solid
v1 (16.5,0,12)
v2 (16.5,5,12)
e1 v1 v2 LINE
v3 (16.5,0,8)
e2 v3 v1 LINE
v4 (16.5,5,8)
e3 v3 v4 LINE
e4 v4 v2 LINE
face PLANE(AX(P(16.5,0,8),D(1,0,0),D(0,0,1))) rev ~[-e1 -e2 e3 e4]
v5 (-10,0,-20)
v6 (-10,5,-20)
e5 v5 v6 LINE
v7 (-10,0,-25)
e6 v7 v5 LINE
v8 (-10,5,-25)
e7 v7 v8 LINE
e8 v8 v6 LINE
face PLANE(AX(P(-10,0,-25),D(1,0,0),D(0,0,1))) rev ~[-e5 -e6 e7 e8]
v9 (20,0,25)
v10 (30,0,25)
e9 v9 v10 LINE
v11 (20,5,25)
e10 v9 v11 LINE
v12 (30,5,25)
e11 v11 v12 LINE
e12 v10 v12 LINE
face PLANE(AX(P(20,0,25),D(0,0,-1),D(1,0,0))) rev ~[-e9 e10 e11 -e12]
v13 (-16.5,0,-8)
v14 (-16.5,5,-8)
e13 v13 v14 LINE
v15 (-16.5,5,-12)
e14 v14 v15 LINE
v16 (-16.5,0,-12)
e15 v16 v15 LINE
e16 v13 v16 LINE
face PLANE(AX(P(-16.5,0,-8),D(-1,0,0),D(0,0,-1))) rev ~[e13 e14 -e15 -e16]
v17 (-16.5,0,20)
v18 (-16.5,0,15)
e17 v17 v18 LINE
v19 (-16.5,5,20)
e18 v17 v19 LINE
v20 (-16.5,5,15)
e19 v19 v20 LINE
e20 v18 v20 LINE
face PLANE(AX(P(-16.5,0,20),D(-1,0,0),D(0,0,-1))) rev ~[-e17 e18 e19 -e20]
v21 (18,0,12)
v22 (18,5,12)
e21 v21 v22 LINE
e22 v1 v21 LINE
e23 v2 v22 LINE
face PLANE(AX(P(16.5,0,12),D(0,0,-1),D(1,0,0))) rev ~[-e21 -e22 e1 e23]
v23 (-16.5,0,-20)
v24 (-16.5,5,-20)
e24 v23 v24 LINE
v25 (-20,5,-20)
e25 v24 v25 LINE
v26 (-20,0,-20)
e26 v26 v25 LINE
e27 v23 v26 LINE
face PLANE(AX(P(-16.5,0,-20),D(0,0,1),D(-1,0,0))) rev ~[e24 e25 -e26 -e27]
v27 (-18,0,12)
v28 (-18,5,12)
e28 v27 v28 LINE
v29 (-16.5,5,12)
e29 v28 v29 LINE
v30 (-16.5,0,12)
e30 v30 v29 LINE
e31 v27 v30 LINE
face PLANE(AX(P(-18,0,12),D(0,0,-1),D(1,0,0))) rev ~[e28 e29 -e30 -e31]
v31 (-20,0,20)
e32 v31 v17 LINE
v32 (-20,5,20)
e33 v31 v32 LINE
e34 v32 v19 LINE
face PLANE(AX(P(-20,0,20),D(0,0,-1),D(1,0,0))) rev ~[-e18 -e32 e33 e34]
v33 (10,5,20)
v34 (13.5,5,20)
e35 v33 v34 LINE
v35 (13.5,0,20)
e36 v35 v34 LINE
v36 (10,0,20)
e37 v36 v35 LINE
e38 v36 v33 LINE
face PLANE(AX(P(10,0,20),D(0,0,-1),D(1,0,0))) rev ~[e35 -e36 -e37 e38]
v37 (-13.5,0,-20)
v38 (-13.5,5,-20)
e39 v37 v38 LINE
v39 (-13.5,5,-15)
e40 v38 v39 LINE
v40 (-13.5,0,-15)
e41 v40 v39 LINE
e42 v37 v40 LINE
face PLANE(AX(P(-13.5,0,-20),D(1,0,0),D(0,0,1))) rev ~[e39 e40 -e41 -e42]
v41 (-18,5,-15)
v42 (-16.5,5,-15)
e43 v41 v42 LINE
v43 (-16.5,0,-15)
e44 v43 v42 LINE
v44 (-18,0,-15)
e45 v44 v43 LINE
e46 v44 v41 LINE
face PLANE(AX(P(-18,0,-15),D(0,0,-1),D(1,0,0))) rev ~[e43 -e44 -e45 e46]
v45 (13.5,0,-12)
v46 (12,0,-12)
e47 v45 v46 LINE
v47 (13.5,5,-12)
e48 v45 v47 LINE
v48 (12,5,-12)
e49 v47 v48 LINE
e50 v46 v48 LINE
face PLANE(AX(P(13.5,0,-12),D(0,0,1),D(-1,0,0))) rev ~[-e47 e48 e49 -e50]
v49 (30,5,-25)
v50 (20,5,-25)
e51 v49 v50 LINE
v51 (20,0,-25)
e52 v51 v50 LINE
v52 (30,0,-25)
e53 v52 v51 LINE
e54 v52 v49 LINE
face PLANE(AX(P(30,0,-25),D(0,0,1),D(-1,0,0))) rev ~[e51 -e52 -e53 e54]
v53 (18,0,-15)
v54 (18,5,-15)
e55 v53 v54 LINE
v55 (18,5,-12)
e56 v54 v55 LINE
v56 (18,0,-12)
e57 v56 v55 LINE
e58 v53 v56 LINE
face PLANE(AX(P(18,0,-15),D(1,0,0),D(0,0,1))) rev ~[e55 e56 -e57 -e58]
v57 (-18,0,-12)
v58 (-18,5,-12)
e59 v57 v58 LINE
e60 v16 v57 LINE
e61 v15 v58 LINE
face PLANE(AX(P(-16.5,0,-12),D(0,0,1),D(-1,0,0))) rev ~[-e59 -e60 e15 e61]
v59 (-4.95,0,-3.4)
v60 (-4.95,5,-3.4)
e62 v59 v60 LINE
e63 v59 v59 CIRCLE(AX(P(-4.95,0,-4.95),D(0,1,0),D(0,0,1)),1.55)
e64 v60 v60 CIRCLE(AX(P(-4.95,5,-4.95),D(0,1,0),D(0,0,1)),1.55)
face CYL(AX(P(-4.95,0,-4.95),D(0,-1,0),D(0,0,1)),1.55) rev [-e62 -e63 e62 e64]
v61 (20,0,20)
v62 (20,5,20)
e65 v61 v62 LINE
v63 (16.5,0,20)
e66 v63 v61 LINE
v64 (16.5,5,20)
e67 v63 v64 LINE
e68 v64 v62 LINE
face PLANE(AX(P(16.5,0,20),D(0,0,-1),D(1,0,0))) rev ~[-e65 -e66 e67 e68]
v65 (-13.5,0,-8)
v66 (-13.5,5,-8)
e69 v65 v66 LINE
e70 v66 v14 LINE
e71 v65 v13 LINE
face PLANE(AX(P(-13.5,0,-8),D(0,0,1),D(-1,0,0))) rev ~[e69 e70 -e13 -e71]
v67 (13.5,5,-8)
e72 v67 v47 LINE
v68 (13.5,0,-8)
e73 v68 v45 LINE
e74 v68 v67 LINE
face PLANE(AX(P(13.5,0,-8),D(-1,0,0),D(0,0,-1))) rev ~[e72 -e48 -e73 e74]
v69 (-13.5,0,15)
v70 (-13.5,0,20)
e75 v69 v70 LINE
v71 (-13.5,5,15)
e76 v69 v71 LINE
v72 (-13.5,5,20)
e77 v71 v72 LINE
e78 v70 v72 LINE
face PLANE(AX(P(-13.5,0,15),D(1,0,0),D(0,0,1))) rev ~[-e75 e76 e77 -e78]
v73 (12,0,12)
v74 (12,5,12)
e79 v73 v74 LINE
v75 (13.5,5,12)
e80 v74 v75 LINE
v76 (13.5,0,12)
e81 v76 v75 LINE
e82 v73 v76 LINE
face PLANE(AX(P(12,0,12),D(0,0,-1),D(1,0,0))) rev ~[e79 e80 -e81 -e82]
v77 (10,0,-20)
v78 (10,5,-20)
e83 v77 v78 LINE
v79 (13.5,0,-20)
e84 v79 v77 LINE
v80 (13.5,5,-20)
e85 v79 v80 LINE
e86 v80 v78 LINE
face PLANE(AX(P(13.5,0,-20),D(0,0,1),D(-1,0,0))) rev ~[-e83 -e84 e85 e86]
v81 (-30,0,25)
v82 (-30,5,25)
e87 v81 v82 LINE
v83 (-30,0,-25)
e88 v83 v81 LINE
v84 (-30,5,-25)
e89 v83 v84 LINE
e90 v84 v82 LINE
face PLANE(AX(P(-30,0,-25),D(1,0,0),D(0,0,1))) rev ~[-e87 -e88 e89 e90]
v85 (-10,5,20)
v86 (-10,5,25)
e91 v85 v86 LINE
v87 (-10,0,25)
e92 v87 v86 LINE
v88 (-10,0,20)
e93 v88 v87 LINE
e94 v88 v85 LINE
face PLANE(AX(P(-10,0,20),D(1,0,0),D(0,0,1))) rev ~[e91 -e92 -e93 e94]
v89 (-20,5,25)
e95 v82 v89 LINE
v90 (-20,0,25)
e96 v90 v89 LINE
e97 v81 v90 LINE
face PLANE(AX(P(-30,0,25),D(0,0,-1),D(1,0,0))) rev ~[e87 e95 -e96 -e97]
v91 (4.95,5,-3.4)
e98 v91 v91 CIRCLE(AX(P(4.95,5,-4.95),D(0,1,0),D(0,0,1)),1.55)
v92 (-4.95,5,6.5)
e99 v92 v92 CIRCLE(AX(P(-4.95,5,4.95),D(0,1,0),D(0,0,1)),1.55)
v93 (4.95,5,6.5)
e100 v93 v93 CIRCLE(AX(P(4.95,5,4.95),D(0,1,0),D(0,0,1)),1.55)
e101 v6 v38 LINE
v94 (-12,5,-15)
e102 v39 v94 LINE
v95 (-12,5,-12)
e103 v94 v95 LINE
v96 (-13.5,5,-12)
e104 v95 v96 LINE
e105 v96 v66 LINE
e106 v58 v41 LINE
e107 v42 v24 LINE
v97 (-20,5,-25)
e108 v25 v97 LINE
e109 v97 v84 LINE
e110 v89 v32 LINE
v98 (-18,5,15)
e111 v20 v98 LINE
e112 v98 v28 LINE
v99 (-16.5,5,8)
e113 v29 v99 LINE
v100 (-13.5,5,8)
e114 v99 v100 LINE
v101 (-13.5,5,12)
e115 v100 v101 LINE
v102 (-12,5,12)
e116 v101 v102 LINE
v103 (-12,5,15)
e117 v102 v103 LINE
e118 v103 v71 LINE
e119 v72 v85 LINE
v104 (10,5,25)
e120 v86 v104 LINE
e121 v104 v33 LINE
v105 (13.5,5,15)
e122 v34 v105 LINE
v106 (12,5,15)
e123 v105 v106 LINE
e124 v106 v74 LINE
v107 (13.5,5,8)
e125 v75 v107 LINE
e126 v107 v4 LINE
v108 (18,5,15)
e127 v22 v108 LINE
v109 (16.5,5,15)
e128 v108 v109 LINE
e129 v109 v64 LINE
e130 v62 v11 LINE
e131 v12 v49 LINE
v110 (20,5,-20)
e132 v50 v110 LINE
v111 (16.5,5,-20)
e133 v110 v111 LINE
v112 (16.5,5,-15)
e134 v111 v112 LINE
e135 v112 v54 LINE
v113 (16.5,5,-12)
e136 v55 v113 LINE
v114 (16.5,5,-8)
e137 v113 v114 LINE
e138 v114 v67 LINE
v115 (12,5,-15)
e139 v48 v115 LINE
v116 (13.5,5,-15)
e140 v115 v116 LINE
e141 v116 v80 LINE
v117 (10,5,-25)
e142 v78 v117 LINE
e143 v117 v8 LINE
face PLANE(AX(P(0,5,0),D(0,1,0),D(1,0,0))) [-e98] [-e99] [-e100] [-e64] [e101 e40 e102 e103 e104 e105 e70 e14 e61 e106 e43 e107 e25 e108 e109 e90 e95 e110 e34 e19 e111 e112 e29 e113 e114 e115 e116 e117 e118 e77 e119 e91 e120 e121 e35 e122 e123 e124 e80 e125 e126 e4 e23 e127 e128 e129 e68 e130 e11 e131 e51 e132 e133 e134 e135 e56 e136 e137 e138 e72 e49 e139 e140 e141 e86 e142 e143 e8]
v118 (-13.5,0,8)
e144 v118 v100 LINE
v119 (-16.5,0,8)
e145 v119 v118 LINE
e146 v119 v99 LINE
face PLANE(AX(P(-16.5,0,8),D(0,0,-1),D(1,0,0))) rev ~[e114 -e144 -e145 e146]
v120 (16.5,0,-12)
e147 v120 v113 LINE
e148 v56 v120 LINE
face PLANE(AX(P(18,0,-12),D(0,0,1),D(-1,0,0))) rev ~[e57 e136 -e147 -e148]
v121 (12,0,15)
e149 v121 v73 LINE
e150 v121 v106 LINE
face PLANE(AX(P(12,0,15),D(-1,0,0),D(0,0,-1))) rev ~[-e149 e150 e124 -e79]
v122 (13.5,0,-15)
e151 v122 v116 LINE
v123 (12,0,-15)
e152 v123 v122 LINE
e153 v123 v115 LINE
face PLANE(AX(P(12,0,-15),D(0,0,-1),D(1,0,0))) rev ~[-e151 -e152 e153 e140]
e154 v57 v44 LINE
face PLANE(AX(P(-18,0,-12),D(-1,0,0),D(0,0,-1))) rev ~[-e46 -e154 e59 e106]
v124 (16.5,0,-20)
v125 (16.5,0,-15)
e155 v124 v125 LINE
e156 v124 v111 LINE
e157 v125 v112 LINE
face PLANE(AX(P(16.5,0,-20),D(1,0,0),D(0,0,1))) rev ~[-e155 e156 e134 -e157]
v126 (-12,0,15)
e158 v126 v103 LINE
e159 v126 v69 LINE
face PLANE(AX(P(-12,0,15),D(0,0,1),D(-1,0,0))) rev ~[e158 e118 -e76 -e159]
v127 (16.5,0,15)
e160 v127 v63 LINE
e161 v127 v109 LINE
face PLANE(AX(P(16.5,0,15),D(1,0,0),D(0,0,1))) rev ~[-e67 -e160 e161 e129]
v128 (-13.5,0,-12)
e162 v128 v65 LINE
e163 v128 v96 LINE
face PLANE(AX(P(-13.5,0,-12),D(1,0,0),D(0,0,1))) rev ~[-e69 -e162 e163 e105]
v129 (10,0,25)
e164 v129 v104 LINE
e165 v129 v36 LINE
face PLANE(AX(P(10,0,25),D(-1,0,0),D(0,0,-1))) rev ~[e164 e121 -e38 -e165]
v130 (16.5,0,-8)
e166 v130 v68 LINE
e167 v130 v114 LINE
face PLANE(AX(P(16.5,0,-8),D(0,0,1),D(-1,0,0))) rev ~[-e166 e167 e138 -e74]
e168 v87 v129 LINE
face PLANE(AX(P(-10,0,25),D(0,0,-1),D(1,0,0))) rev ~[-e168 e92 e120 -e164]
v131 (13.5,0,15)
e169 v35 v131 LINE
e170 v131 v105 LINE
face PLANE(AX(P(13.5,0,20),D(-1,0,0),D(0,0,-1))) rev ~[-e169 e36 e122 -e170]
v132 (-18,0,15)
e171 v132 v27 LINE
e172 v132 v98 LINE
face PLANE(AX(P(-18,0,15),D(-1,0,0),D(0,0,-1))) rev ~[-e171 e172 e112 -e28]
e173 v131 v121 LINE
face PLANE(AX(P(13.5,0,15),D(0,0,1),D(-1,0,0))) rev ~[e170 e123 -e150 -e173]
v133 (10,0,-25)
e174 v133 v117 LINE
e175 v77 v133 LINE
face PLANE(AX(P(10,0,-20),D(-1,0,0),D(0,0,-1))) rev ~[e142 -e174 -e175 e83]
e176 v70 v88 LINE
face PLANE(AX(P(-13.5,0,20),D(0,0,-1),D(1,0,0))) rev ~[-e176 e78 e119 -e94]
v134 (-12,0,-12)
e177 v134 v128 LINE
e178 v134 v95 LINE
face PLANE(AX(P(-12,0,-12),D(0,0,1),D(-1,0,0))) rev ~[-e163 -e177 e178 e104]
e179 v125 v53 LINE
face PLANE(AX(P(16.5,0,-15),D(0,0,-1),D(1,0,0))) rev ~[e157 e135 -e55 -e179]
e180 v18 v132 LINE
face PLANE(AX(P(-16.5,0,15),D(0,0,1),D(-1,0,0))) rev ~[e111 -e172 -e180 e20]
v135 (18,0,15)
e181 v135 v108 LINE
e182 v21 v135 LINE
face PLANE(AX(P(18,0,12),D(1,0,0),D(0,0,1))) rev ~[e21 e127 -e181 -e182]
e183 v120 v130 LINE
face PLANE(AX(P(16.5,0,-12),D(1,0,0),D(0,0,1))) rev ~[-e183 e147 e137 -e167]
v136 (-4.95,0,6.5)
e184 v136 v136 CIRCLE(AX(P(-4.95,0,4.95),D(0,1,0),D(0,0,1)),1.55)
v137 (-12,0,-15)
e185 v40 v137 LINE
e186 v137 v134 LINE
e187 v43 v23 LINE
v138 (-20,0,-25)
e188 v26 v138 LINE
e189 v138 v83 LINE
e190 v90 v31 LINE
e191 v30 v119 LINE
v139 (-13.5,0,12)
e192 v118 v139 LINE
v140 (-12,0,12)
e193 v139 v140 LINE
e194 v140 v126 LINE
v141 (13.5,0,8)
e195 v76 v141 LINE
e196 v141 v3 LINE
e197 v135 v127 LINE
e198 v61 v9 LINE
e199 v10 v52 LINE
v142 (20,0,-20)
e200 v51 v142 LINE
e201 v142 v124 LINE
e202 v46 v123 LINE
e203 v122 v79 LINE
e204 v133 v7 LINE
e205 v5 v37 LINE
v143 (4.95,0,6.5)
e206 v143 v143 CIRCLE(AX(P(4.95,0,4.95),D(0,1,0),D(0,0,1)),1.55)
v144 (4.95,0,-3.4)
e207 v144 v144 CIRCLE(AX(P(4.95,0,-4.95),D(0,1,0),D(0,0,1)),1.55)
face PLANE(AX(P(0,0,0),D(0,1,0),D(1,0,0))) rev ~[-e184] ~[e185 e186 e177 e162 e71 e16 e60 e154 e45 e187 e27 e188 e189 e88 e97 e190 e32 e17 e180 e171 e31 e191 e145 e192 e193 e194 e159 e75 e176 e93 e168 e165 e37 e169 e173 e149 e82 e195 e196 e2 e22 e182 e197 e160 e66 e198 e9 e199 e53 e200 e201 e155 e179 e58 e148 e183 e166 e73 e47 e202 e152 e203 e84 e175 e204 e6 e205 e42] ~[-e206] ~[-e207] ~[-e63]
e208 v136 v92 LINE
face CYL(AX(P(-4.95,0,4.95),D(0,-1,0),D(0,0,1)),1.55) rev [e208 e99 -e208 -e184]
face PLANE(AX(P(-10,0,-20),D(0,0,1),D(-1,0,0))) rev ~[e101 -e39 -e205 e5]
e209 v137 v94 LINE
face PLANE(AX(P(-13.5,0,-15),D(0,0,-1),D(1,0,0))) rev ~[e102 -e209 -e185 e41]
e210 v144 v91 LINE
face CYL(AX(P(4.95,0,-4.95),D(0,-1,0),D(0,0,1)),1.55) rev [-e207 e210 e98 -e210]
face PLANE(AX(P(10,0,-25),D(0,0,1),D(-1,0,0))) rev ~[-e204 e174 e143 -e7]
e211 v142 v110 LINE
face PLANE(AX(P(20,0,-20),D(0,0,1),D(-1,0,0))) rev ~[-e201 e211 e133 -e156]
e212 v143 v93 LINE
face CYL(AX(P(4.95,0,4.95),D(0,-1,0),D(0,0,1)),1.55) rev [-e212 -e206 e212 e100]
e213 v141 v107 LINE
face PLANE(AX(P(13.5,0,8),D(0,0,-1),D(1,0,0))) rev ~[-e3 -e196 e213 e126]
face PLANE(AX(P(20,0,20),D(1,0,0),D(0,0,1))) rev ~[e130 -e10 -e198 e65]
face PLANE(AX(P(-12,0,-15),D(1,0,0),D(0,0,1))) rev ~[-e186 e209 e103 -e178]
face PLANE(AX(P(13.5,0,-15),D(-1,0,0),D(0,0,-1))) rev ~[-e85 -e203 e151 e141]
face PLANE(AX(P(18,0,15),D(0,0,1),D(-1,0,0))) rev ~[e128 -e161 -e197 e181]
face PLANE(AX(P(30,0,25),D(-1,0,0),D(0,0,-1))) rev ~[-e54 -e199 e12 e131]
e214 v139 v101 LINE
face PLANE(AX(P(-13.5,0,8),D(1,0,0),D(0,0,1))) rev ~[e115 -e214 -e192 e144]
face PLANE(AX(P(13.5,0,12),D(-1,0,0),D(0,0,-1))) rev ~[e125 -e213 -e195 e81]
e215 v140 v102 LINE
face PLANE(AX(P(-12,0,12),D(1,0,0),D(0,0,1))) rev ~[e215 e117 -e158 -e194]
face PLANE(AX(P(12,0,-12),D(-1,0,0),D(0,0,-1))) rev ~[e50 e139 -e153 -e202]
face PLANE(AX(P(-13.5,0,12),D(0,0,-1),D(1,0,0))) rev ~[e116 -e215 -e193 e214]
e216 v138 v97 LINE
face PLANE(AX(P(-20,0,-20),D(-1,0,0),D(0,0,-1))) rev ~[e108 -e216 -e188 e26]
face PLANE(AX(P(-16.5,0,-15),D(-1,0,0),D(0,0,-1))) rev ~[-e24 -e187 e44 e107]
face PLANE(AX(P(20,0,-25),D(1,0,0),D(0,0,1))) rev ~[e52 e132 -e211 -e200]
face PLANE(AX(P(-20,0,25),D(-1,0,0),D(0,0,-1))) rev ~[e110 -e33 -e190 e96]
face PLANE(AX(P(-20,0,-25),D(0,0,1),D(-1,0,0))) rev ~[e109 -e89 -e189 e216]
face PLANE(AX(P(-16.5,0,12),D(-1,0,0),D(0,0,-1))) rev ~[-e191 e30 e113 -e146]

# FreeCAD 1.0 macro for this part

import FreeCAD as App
import Part
import Sketcher

V = App.Vector


def add_polygon(sketch, points):
    """Adds a closed chain of lines whose ends are joined by coincident constraints."""
    first, n = sketch.GeometryCount, len(points)
    for a, b in zip(points, points[1:] + points[:1]):
        sketch.addGeometry(Part.LineSegment(App.Vector(*a, 0), App.Vector(*b, 0)), False)
    for i in range(n):
        sketch.addConstraint(Sketcher.Constraint("Coincident", first + i, 2, first + (i + 1) % n, 1))

doc = App.newDocument("Part")
body = doc.addObject("PartDesign::Body", "Body")

# Sketch on XZ plane
sketch1 = body.newObject("Sketcher::SketchObject", "Sketch")
sketch1.AttachmentSupport = (doc.getObject("XZ_Plane"), [""])
sketch1.MapMode = "FlatFace"
add_polygon(sketch1, [(-30, -25), (-30, 25), (-20, 25), (-20, 20), (-16.5, 20), (-16.5, 15), (-18, 15), (-18, 12), (-16.5, 12), (-16.5, 8), (-13.5, 8), (-13.5, 12), (-12, 12), (-12, 15), (-13.5, 15), (-13.5, 20), (-10, 20), (-10, 25), (10, 25), (10, 20), (13.5, 20), (13.5, 15), (12, 15), (12, 12), (13.5, 12), (13.5, 8), (16.5, 8), (16.5, 12), (18, 12), (18, 15), (16.5, 15), (16.5, 20), (20, 20), (20, 25), (30, 25), (30, -25), (20, -25), (20, -20), (16.5, -20), (16.5, -15), (18, -15), (18, -12), (16.5, -12), (16.5, -8), (13.5, -8), (13.5, -12), (12, -12), (12, -15), (13.5, -15), (13.5, -20), (10, -20), (10, -25), (-10, -25), (-10, -20), (-13.5, -20), (-13.5, -15), (-12, -15), (-12, -12), (-13.5, -12), (-13.5, -8), (-16.5, -8), (-16.5, -12), (-18, -12), (-18, -15), (-16.5, -15), (-16.5, -20), (-20, -20), (-20, -25)])  # lines 0-67
sketch1.addGeometry(Part.Circle(V(-5, 5, 0), V(0, 0, 1), 1.6), False)  # 68
sketch1.addGeometry(Part.Circle(V(5, 5, 0), V(0, 0, 1), 1.6), False)  # 69
sketch1.addGeometry(Part.Circle(V(-5, -5, 0), V(0, 0, 1), 1.6), False)  # 70
sketch1.addGeometry(Part.Circle(V(5, -5, 0), V(0, 0, 1), 1.6), False)  # 71
sketch1.addConstraint([
    Sketcher.Constraint("Vertical", 0),
    Sketcher.Constraint("Horizontal", 1),
    Sketcher.Constraint("Vertical", 2),
    Sketcher.Constraint("Horizontal", 3),
    Sketcher.Constraint("Vertical", 4),
    Sketcher.Constraint("Horizontal", 5),
    Sketcher.Constraint("Vertical", 6),
    Sketcher.Constraint("Horizontal", 7),
    Sketcher.Constraint("Vertical", 8),
    Sketcher.Constraint("Horizontal", 9),
    Sketcher.Constraint("Vertical", 10),
    Sketcher.Constraint("Horizontal", 11),
    Sketcher.Constraint("Vertical", 12),
    Sketcher.Constraint("Horizontal", 13),
    Sketcher.Constraint("Vertical", 14),
    Sketcher.Constraint("Horizontal", 15),
    Sketcher.Constraint("Vertical", 16),
    Sketcher.Constraint("Horizontal", 17),
    Sketcher.Constraint("Vertical", 18),
    Sketcher.Constraint("Horizontal", 19),
    Sketcher.Constraint("Vertical", 20),
    Sketcher.Constraint("Horizontal", 21),
    Sketcher.Constraint("Vertical", 22),
    Sketcher.Constraint("Horizontal", 23),
    Sketcher.Constraint("Vertical", 24),
    Sketcher.Constraint("Horizontal", 25),
    Sketcher.Constraint("Vertical", 26),
    Sketcher.Constraint("Horizontal", 27),
    Sketcher.Constraint("Vertical", 28),
    Sketcher.Constraint("Horizontal", 29),
    Sketcher.Constraint("Vertical", 30),
    Sketcher.Constraint("Horizontal", 31),
    Sketcher.Constraint("Vertical", 32),
    Sketcher.Constraint("Horizontal", 33),
    Sketcher.Constraint("Vertical", 34),
    Sketcher.Constraint("Horizontal", 35),
    Sketcher.Constraint("Vertical", 36),
    Sketcher.Constraint("Horizontal", 37),
    Sketcher.Constraint("Vertical", 38),
    Sketcher.Constraint("Horizontal", 39),
    Sketcher.Constraint("Vertical", 40),
    Sketcher.Constraint("Horizontal", 41),
    Sketcher.Constraint("Vertical", 42),
    Sketcher.Constraint("Horizontal", 43),
    Sketcher.Constraint("Vertical", 44),
    Sketcher.Constraint("Horizontal", 45),
    Sketcher.Constraint("Vertical", 46),
    Sketcher.Constraint("Horizontal", 47),
    Sketcher.Constraint("Vertical", 48),
    Sketcher.Constraint("Horizontal", 49),
    Sketcher.Constraint("Vertical", 50),
    Sketcher.Constraint("Horizontal", 51),
    Sketcher.Constraint("Vertical", 52),
    Sketcher.Constraint("Horizontal", 53),
    Sketcher.Constraint("Vertical", 54),
    Sketcher.Constraint("Horizontal", 55),
    Sketcher.Constraint("Vertical", 56),
    Sketcher.Constraint("Horizontal", 57),
    Sketcher.Constraint("Vertical", 58),
    Sketcher.Constraint("Horizontal", 59),
    Sketcher.Constraint("Vertical", 60),
    Sketcher.Constraint("Horizontal", 61),
    Sketcher.Constraint("Vertical", 62),
    Sketcher.Constraint("Horizontal", 63),
    Sketcher.Constraint("Vertical", 64),
    Sketcher.Constraint("Horizontal", 65),
    Sketcher.Constraint("Vertical", 66),
    Sketcher.Constraint("Horizontal", 67),
    Sketcher.Constraint("Equal", 68, 69),
    Sketcher.Constraint("Equal", 69, 70),
    Sketcher.Constraint("Equal", 70, 71),
    Sketcher.Constraint("Symmetric", 69, 3, 70, 3, -1, 1),
    Sketcher.Constraint("Symmetric", 68, 3, 71, 3, -1, 1),
    Sketcher.Constraint("Symmetric", 0, 2, 34, 2, -1, 1),
    Sketcher.Constraint("Symmetric", 2, 2, 36, 2, -1, 1),
    Sketcher.Constraint("Symmetric", 4, 2, 38, 2, -1, 1),
    Sketcher.Constraint("Symmetric", 6, 2, 40, 2, -1, 1),
    Sketcher.Constraint("Symmetric", 8, 2, 42, 2, -1, 1),
    Sketcher.Constraint("Symmetric", 10, 2, 44, 2, -1, 1),
    Sketcher.Constraint("Symmetric", 12, 2, 46, 2, -1, 1),
    Sketcher.Constraint("Symmetric", 14, 2, 48, 2, -1, 1),
    Sketcher.Constraint("Symmetric", 16, 2, 50, 2, -1, 1),
    Sketcher.Constraint("Symmetric", 18, 2, 52, 2, -1, 1),
    Sketcher.Constraint("Symmetric", 20, 2, 54, 2, -1, 1),
    Sketcher.Constraint("Symmetric", 22, 2, 56, 2, -1, 1),
    Sketcher.Constraint("Symmetric", 24, 2, 58, 2, -1, 1),
    Sketcher.Constraint("Symmetric", 26, 2, 60, 2, -1, 1),
    Sketcher.Constraint("Symmetric", 28, 2, 62, 2, -1, 1),
    Sketcher.Constraint("Symmetric", 30, 2, 64, 2, -1, 1),
    Sketcher.Constraint("Symmetric", 32, 2, 66, 2, -1, 1),
    Sketcher.Constraint("Symmetric", 68, 3, 69, 3, -2),
    Sketcher.Constraint("Symmetric", 15, 2, 18, 2, -2),
    Sketcher.Constraint("Symmetric", 13, 2, 20, 2, -2),
    Sketcher.Constraint("Symmetric", 11, 2, 22, 2, -2),
    Sketcher.Constraint("Symmetric", 9, 2, 24, 2, -2),
    Sketcher.Constraint("Symmetric", 7, 2, 26, 2, -2),
    Sketcher.Constraint("Symmetric", 5, 2, 28, 2, -2),
    Sketcher.Constraint("Symmetric", 3, 2, 30, 2, -2),
    Sketcher.Constraint("Symmetric", 1, 2, 32, 2, -2),
    Sketcher.Constraint("Horizontal", 7, 2, 10, 2),
    Sketcher.Constraint("Horizontal", 5, 2, 12, 2),
    Sketcher.Constraint("Horizontal", 3, 2, 14, 2),
    Sketcher.Constraint("Horizontal", 1, 2, 16, 2),
    Sketcher.Constraint("Vertical", 4, 2, 7, 2),
    Sketcher.Constraint("Vertical", 10, 2, 13, 2),
    Sketcher.Constraint("Equal", 7, 11),
    Sketcher.Constraint("Equal", 3, 15),
    Sketcher.Constraint("Equal", 2, 4),
    Sketcher.Constraint("Equal", 59, 6),
    Sketcher.Constraint("Diameter", 68, 3.1),
    Sketcher.Constraint("DistanceX", 1, 1, 1, 2, 10.0),
    Sketcher.Constraint("DistanceX", 9, 1, 9, 2, 3.0),
    Sketcher.Constraint("DistanceX", 17, 1, 17, 2, 20.0),
    Sketcher.Constraint("DistanceY", 0, 1, 0, 2, 50.0),
    Sketcher.Constraint("DistanceY", 2, 2, 2, 1, 5.0),
    Sketcher.Constraint("DistanceY", 8, 2, 8, 1, 4.0),
    Sketcher.Constraint("DistanceX", 3, 1, 3, 2, 3.5),
    Sketcher.Constraint("DistanceX", 5, 2, 5, 1, 1.5),
    Sketcher.Constraint("DistanceX", 68, 3, -1, 1, 4.95),
    Sketcher.Constraint("DistanceY", -1, 1, 68, 3, 4.95),
])
pad1 = body.newObject("PartDesign::Pad", "Pad")
pad1.Profile = sketch1
pad1.Length = 5
pad1.Reversed = True

doc.recompute()
